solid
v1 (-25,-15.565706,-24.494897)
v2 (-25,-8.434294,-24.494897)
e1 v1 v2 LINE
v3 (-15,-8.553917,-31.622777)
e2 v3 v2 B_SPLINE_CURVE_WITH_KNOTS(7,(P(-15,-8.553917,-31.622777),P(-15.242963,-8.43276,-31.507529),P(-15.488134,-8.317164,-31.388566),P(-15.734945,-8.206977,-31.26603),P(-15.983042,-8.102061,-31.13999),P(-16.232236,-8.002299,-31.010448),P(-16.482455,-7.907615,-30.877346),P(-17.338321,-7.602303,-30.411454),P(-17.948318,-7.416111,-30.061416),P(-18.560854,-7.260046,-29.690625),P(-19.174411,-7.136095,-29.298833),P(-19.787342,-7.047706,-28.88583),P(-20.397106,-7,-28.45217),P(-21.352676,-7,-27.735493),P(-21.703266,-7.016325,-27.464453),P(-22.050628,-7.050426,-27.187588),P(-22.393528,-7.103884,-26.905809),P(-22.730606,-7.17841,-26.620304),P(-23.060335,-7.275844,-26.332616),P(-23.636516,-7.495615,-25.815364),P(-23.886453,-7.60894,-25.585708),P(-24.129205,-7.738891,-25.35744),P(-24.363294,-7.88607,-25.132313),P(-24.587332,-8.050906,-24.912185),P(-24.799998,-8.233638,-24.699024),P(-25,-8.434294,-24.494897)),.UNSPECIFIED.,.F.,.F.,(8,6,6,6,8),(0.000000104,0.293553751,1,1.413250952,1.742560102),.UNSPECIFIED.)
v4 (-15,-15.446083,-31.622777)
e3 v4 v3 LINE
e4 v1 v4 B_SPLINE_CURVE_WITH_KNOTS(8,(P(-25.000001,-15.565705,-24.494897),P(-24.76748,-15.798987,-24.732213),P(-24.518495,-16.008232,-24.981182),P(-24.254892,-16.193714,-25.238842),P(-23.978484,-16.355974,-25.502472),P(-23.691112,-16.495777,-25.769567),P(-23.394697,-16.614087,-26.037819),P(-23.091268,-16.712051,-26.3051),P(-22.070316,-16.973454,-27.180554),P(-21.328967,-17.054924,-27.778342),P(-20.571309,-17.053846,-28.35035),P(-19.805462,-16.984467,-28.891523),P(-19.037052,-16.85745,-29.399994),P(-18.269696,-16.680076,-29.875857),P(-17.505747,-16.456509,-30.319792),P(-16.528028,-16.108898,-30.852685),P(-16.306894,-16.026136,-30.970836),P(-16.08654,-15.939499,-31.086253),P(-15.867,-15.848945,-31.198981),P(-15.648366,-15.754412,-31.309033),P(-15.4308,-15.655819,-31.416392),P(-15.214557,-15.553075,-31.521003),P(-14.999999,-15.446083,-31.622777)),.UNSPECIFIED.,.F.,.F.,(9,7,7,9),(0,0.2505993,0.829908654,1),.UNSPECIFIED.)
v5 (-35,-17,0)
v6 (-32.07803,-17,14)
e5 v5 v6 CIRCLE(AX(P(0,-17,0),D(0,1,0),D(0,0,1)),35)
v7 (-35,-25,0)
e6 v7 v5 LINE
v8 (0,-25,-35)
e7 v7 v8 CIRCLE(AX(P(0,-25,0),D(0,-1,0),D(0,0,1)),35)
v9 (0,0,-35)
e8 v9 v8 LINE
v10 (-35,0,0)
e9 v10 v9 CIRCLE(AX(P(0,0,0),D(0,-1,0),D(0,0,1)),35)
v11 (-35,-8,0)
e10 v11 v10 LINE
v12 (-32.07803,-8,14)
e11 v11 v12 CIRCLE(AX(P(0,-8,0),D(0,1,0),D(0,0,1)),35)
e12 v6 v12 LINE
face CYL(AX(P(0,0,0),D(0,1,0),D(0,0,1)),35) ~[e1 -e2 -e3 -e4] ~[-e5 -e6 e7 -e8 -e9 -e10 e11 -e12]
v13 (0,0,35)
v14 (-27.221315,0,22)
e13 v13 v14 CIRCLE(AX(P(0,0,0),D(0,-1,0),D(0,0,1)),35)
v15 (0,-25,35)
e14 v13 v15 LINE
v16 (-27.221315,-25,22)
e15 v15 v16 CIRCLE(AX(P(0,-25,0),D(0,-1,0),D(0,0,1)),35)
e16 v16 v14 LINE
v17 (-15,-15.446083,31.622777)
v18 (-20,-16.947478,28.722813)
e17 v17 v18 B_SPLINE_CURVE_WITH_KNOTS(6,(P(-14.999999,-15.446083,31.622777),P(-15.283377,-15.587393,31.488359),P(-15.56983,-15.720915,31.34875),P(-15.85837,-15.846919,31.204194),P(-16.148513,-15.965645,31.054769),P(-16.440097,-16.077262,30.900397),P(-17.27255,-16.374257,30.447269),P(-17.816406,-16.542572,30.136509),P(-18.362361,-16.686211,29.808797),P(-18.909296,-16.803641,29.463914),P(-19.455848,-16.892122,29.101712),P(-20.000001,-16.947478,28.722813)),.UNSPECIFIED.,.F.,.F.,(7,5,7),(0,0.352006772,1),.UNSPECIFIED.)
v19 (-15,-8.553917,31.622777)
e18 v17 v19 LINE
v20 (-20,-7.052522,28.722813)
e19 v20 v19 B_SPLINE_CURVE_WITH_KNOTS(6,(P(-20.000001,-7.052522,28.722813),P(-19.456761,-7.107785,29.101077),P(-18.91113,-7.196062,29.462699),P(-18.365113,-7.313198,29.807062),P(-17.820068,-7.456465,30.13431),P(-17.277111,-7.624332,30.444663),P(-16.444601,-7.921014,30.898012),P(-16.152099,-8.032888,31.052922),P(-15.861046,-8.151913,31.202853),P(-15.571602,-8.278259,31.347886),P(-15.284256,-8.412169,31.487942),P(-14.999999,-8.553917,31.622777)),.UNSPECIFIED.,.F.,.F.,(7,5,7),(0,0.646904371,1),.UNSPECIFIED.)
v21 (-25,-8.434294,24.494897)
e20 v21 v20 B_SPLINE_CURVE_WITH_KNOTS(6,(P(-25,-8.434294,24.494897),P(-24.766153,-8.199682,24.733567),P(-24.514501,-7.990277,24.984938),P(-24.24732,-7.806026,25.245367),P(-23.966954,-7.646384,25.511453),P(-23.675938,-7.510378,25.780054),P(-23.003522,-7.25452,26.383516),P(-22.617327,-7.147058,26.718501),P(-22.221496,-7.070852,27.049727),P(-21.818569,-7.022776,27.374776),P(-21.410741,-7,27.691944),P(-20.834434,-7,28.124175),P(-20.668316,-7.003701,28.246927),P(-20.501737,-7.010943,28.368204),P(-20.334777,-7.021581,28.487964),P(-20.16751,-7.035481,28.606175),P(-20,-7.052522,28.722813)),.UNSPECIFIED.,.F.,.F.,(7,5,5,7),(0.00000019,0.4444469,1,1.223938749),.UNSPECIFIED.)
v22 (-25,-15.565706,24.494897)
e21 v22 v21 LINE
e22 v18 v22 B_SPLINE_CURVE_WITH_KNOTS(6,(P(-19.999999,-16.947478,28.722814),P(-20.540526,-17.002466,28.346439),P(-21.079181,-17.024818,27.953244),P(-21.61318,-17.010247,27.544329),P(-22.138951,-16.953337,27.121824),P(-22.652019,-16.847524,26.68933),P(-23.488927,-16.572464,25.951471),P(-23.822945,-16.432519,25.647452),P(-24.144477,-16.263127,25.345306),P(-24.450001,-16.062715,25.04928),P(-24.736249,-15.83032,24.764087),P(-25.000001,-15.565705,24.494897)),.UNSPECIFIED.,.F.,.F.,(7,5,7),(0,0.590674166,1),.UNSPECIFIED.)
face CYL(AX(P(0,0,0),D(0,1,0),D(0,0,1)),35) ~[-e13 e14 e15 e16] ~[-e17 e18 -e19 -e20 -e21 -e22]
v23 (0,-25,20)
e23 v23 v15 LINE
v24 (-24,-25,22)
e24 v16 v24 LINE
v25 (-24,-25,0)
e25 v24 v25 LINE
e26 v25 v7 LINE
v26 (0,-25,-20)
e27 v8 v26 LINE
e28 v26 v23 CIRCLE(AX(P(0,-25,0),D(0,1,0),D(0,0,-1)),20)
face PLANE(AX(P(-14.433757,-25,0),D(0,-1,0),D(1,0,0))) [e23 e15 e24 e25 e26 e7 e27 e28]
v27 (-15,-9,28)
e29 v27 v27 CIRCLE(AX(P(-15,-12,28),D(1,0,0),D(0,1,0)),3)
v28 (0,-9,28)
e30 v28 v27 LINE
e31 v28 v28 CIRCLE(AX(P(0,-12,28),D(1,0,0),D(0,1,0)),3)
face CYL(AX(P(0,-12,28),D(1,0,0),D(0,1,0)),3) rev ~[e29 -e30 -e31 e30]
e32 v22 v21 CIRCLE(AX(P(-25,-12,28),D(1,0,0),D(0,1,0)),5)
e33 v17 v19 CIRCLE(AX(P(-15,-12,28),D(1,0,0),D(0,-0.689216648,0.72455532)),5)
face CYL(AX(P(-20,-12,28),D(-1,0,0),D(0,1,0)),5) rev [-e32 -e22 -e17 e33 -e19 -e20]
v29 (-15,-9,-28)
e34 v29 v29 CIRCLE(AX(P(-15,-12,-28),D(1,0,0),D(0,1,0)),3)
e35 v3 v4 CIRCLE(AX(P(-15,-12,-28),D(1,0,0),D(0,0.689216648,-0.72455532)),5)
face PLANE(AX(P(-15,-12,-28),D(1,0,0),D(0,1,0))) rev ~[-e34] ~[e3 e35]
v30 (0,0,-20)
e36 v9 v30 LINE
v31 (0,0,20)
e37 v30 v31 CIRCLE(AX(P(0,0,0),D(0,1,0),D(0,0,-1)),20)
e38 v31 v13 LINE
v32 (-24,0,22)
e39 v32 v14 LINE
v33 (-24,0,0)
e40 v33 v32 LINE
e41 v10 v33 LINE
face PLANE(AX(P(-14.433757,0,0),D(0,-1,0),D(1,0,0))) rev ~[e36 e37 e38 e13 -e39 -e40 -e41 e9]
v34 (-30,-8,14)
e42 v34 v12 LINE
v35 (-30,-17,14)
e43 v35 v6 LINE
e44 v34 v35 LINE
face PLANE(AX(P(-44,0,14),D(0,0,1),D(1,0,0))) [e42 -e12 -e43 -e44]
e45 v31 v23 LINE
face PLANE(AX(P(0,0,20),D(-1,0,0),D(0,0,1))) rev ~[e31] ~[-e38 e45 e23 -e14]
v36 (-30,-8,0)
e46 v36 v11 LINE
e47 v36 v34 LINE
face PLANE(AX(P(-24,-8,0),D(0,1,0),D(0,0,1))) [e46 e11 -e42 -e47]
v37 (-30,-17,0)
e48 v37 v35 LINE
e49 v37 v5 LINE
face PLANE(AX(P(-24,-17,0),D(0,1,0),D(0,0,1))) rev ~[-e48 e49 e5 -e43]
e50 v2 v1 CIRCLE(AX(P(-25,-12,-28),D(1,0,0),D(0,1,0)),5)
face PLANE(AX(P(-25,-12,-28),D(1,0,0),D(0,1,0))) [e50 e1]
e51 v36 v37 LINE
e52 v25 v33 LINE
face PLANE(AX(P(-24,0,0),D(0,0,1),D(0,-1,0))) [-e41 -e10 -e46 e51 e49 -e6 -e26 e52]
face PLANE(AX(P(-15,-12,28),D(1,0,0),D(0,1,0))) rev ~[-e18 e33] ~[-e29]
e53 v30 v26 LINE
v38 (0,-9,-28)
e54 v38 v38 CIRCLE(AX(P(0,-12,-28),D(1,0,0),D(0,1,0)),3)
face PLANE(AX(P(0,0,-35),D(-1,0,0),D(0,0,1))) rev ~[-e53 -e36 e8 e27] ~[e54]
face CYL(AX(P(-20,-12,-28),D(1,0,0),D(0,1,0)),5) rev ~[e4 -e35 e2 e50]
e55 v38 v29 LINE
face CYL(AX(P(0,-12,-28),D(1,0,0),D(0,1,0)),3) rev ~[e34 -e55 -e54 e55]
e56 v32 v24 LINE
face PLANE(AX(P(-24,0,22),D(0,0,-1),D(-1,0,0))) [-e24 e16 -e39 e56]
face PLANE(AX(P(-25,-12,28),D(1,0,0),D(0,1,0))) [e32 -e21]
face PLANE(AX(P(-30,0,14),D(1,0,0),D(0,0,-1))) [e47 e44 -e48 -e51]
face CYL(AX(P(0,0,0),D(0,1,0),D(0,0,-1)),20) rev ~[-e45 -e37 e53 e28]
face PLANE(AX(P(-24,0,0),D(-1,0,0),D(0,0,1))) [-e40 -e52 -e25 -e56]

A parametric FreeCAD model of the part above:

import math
import FreeCAD as App
import Part
import Sketcher
from FreeCAD import Vector
Q = App.Units.Quantity


def add_polygon(sketch, points):
    """Adds a closed chain of lines whose ends are joined by coincident constraints."""
    first, n = sketch.GeometryCount, len(points)
    for a, b in zip(points, points[1:] + points[:1]):
        sketch.addGeometry(Part.LineSegment(App.Vector(*a, 0), App.Vector(*b, 0)), False)
    for i in range(n):
        sketch.addConstraint(Sketcher.Constraint("Coincident", first + i, 2, first + (i + 1) % n, 1))

doc = App.newDocument("Part")
body = doc.addObject("PartDesign::Body", "Body")

# Sketch on XZ plane
sketch1 = doc.addObject("Sketcher::SketchObject", "Sketch")
body.addObject(sketch1)
sketch1.AttachmentSupport = (doc.XZ_Plane, [""])
sketch1.MapMode = "FlatFace"
sketch1.addGeometry(Part.LineSegment(Vector(0, 20, 0), Vector(0, 35, 0)), False)
sketch1.addGeometry(Part.ArcOfCircle(Part.Circle(Vector(0, 0, 0), Vector(0, 0, 1), 35), math.radians(90), math.radians(270)), False)
sketch1.addGeometry(Part.LineSegment(Vector(0, -35, 0), Vector(0, -20, 0)), False)
sketch1.addGeometry(Part.ArcOfCircle(Part.Circle(Vector(0, 0, 0), Vector(0, 0, 1), 20), math.radians(90), math.radians(270)), False)
sketch1.addConstraint(Sketcher.Constraint("Coincident", 0, 2, 1, 1))
sketch1.addConstraint(Sketcher.Constraint("Coincident", 1, 2, 2, 1))
sketch1.addConstraint(Sketcher.Constraint("Coincident", 2, 2, 3, 2))
sketch1.addConstraint(Sketcher.Constraint("Coincident", 3, 1, 0, 1))
sketch1.addConstraint(Sketcher.Constraint("Vertical", 0))
sketch1.addConstraint(Sketcher.Constraint("Vertical", 2))
sketch1.addConstraint(Sketcher.Constraint("Coincident", 1, 3, -1, 1))
sketch1.addConstraint(Sketcher.Constraint("Coincident", 3, 3, -1, 1))
sketch1.addConstraint(Sketcher.Constraint("PointOnObject", 0, 2, -2))
sketch1.addConstraint(Sketcher.Constraint("PointOnObject", 1, 2, -2))
sketch1.addConstraint(Sketcher.Constraint("Radius", 1, Q("35 mm")))
sketch1.addConstraint(Sketcher.Constraint("Radius", 3, Q("20 mm")))
pad1 = doc.addObject("PartDesign::Pad", "Pad")
body.addObject(pad1)
pad1.Profile = sketch1
pad1.Length = 25

# Sketch on YZ plane
sketch2 = doc.addObject("Sketcher::SketchObject", "Sketch001")
body.addObject(sketch2)
sketch2.AttachmentSupport = (doc.YZ_Plane, [""])
sketch2.MapMode = "FlatFace"
sketch2.addGeometry(Part.Circle(Vector(-12, 28, 0), Vector(0, 0, 1), 3), False)
sketch2.addGeometry(Part.Circle(Vector(-12, -28, 0), Vector(0, 0, 1), 3), False)
sketch2.addConstraint(Sketcher.Constraint("Equal", 0, 1))
sketch2.addConstraint(Sketcher.Constraint("Symmetric", 0, 3, 1, 3, -1))
sketch2.addConstraint(Sketcher.Constraint("Diameter", 0, Q("6 mm")))
sketch2.addConstraint(Sketcher.Constraint("DistanceX", 0, 3, -1, 1, Q("12 mm")))
sketch2.addConstraint(Sketcher.Constraint("DistanceY", -1, 1, 0, 3, Q("28 mm")))
pocket1 = doc.addObject("PartDesign::Pocket", "Pocket")
body.addObject(pocket1)
pocket1.Profile = sketch2
pocket1.Length = 25

# Sketch on YZ plane
sketch3 = doc.addObject("Sketcher::SketchObject", "Sketch002")
body.addObject(sketch3)
sketch3.AttachmentSupport = (doc.YZ_Plane, [""])
sketch3.MapMode = "FlatFace"
sketch3.AttachmentOffset = App.Placement(Vector(0, 0, -20), App.Rotation())
sketch3.addGeometry(Part.Circle(Vector(-12, 28, 0), Vector(0, 0, 1), 5), False)
sketch3.addGeometry(Part.Circle(Vector(-12, -28, 0), Vector(0, 0, 1), 5), False)
sketch3.addConstraint(Sketcher.Constraint("Equal", 0, 1))
sketch3.addConstraint(Sketcher.Constraint("Symmetric", 0, 3, 1, 3, -1))
sketch3.addConstraint(Sketcher.Constraint("Diameter", 0, Q("10 mm")))
sketch3.addConstraint(Sketcher.Constraint("DistanceX", 0, 3, -1, 1, Q("12 mm")))
sketch3.addConstraint(Sketcher.Constraint("DistanceY", -1, 1, 0, 3, Q("28 mm")))
pocket2 = doc.addObject("PartDesign::Pocket", "Pocket001")
body.addObject(pocket2)
pocket2.Profile = sketch3
pocket2.Length = 10
pocket2.Midplane = True

# Sketch on XZ plane
sketch4 = doc.addObject("Sketcher::SketchObject", "Sketch003")
body.addObject(sketch4)
sketch4.AttachmentSupport = (doc.XZ_Plane, [""])
sketch4.MapMode = "FlatFace"
add_polygon(sketch4, [(-30, 0), (-24, 0), (-24, 22), (-44, 22), (-44, 14), (-30, 14)])  # lines 0-5
sketch4.addConstraint(Sketcher.Constraint("Horizontal", 0))
sketch4.addConstraint(Sketcher.Constraint("Vertical", 1))
sketch4.addConstraint(Sketcher.Constraint("Horizontal", 2))
sketch4.addConstraint(Sketcher.Constraint("Vertical", 3))
sketch4.addConstraint(Sketcher.Constraint("Horizontal", 4))
sketch4.addConstraint(Sketcher.Constraint("Vertical", 5))
sketch4.addConstraint(Sketcher.Constraint("PointOnObject", 0, 2, -1))
sketch4.addConstraint(Sketcher.Constraint("Equal", 4, 5))
sketch4.addConstraint(Sketcher.Constraint("DistanceX", 0, 1, 0, 2, Q("6 mm")))
sketch4.addConstraint(Sketcher.Constraint("DistanceX", 2, 2, 2, 1, Q("20 mm")))
sketch4.addConstraint(Sketcher.Constraint("DistanceY", 1, 1, 1, 2, Q("22 mm")))
sketch4.addConstraint(Sketcher.Constraint("DistanceX", 0, 2, -1, 1, Q("24 mm")))
pocket3 = doc.addObject("PartDesign::Pocket", "Pocket002")
body.addObject(pocket3)
pocket3.Profile = sketch4
pocket3.Length = 28.5
pocket3.Reversed = True

# Sketch on YZ plane
sketch5 = doc.addObject("Sketcher::SketchObject", "Sketch004")
body.addObject(sketch5)
sketch5.AttachmentSupport = (doc.YZ_Plane, [""])
sketch5.MapMode = "FlatFace"
sketch5.AttachmentOffset = App.Placement(Vector(0, 0, -24), App.Rotation())
add_polygon(sketch5, [(0, 14), (0, 0), (-8, 0), (-8, 14)])  # lines 0-3
add_polygon(sketch5, [(-17, 14), (-17, 0), (-25, 0), (-25, 14)])  # lines 4-7
sketch5.addConstraint(Sketcher.Constraint("Vertical", 0))
sketch5.addConstraint(Sketcher.Constraint("Horizontal", 1))
sketch5.addConstraint(Sketcher.Constraint("Vertical", 2))
sketch5.addConstraint(Sketcher.Constraint("Horizontal", 3))
sketch5.addConstraint(Sketcher.Constraint("Vertical", 4))
sketch5.addConstraint(Sketcher.Constraint("Horizontal", 5))
sketch5.addConstraint(Sketcher.Constraint("Vertical", 6))
sketch5.addConstraint(Sketcher.Constraint("Horizontal", 7))
sketch5.addConstraint(Sketcher.Constraint("Coincident", 0, 2, -1, 1))
sketch5.addConstraint(Sketcher.Constraint("PointOnObject", 4, 2, -1))
sketch5.addConstraint(Sketcher.Constraint("Horizontal", 3, 2, 6, 2))
sketch5.addConstraint(Sketcher.Constraint("Equal", 3, 5))
sketch5.addConstraint(Sketcher.Constraint("DistanceX", 1, 2, 1, 1, Q("8 mm")))
sketch5.addConstraint(Sketcher.Constraint("DistanceY", 0, 2, 0, 1, Q("14 mm")))
sketch5.addConstraint(Sketcher.Constraint("DistanceX", 4, 2, -1, 1, Q("17 mm")))
pocket4 = doc.addObject("PartDesign::Pocket", "Pocket003")
body.addObject(pocket4)
pocket4.Profile = sketch5
pocket4.Length = 25

doc.recompute()
